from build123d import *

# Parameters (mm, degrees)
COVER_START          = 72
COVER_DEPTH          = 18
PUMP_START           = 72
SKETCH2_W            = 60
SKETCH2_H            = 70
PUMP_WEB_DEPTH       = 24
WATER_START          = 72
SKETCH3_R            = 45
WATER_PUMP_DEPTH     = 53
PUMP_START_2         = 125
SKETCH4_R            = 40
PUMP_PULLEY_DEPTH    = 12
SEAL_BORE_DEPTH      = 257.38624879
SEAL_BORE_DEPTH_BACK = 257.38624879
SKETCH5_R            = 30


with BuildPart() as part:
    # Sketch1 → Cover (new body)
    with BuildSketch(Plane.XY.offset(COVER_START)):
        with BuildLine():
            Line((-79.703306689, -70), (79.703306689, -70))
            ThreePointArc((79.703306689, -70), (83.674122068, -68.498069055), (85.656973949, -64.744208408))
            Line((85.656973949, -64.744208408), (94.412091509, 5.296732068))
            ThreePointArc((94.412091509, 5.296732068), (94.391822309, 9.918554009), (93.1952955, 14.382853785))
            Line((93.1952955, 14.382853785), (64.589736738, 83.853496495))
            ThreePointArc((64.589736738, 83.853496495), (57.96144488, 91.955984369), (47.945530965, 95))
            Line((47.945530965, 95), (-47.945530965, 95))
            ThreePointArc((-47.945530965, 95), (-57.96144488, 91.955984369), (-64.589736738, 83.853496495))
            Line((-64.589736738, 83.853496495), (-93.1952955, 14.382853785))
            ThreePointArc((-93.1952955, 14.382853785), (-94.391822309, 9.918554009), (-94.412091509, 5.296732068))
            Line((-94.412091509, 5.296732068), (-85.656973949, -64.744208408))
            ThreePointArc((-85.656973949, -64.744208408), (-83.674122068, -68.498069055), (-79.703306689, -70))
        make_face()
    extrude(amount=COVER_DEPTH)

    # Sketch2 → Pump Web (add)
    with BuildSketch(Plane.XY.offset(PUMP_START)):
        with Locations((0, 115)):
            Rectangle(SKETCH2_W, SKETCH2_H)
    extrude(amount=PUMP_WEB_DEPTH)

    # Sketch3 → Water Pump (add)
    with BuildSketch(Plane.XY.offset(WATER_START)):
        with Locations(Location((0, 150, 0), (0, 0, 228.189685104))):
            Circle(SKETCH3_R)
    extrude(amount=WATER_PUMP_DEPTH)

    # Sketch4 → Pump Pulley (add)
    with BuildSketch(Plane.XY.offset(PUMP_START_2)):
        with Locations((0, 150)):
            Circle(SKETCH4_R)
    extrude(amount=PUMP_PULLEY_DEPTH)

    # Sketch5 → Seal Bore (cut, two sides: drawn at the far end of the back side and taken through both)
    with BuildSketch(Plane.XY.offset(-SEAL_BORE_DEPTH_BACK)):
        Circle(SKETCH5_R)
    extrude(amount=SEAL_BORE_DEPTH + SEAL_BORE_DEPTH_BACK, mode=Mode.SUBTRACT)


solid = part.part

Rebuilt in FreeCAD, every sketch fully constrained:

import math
import FreeCAD as App
import Part
import Sketcher

V = App.Vector


def add_polygon(sketch, points):
    """Adds a closed chain of lines whose ends are joined by coincident constraints."""
    first, n = sketch.GeometryCount, len(points)
    for a, b in zip(points, points[1:] + points[:1]):
        sketch.addGeometry(Part.LineSegment(App.Vector(*a, 0), App.Vector(*b, 0)), False)
    for i in range(n):
        sketch.addConstraint(Sketcher.Constraint("Coincident", first + i, 2, first + (i + 1) % n, 1))

doc = App.newDocument("Part")
body = doc.addObject("PartDesign::Body", "Body")

# Sketch on XY plane
sketch1 = doc.addObject("Sketcher::SketchObject", "Sketch")
body.addObject(sketch1)
sketch1.AttachmentSupport = (doc.XY_Plane, [""])
sketch1.MapMode = "FlatFace"
sketch1.AttachmentOffset = App.Placement(V(0, 0, 72), App.Rotation())
sketch1.addGeometry([
    Part.LineSegment(V(-79.703307, -70, 0), V(79.703307, -70, 0)),  # 0
    Part.ArcOfCircle(Part.Circle(V(79.703307, -64, 0), V(0, 0, 1), 6), math.radians(-90), math.radians(-7.125016)),  # 1
    Part.LineSegment(V(85.656974, -64.744208, 0), V(94.412092, 5.296732, 0)),  # 2
    Part.ArcOfCircle(Part.Circle(V(76.55109, 7.529357, 0), V(0, 0, 1), 18), math.radians(-7.125016), math.radians(22.380135)),  # 3
    Part.LineSegment(V(93.195296, 14.382854, 0), V(64.589737, 83.853496, 0)),  # 4
    Part.ArcOfCircle(Part.Circle(V(47.945531, 77, 0), V(0, 0, 1), 18), math.radians(22.380135), math.radians(90)),  # 5
    Part.LineSegment(V(47.945531, 95, 0), V(-47.945531, 95, 0)),  # 6
    Part.ArcOfCircle(Part.Circle(V(-47.945531, 77, 0), V(0, 0, 1), 18), math.radians(90), math.radians(157.619865)),  # 7
    Part.LineSegment(V(-64.589737, 83.853496, 0), V(-93.195296, 14.382854, 0)),  # 8
    Part.ArcOfCircle(Part.Circle(V(-76.55109, 7.529357, 0), V(0, 0, 1), 18), math.radians(157.619865), math.radians(187.125016)),  # 9
    Part.LineSegment(V(-94.412092, 5.296732, 0), V(-85.656974, -64.744208, 0)),  # 10
    Part.ArcOfCircle(Part.Circle(V(-79.703307, -64, 0), V(0, 0, 1), 6), math.radians(-172.874984), math.radians(-90)),  # 11
], False)
sketch1.addConstraint([
    Sketcher.Constraint("Coincident", 0, 2, 1, 1),
    Sketcher.Constraint("Coincident", 1, 2, 2, 1),
    Sketcher.Constraint("Coincident", 2, 2, 3, 1),
    Sketcher.Constraint("Coincident", 3, 2, 4, 1),
    Sketcher.Constraint("Coincident", 4, 2, 5, 1),
    Sketcher.Constraint("Coincident", 5, 2, 6, 1),
    Sketcher.Constraint("Coincident", 6, 2, 7, 1),
    Sketcher.Constraint("Coincident", 7, 2, 8, 1),
    Sketcher.Constraint("Coincident", 8, 2, 9, 1),
    Sketcher.Constraint("Coincident", 9, 2, 10, 1),
    Sketcher.Constraint("Coincident", 10, 2, 11, 1),
    Sketcher.Constraint("Coincident", 11, 2, 0, 1),
    Sketcher.Constraint("Horizontal", 0),
    Sketcher.Constraint("Horizontal", 6),
    Sketcher.Constraint("Radius", 1, 6.0),
    Sketcher.Constraint("Radius", 3, 18.0),
    Sketcher.Constraint("Radius", 5, 18.0),
    Sketcher.Constraint("Radius", 7, 18.0),
    Sketcher.Constraint("Radius", 9, 18.0),
    Sketcher.Constraint("Radius", 11, 6.0),
    Sketcher.Constraint("DistanceY", 1, 3, -1, 1, 64.0),
    Sketcher.Constraint("DistanceY", -1, 1, 5, 3, 77.0),
    Sketcher.Constraint("DistanceX", 3, 3, 2, 2, 17.861002),
    Sketcher.Constraint("DistanceX", 9, 2, 9, 3, 17.861002),
    Sketcher.Constraint("DistanceX", 6, 2, 6, 1, 95.891062),
    Sketcher.Constraint("DistanceX", 0, 1, 0, 2, 159.406613),
    Sketcher.Constraint("DistanceX", -1, 1, 3, 3, 76.55109),
    Sketcher.Constraint("DistanceX", -1, 1, 5, 3, 47.945531),
    Sketcher.Constraint("DistanceX", 7, 3, -1, 1, 47.945531),
    Sketcher.Constraint("DistanceX", 9, 3, -1, 1, 76.55109),
    Sketcher.Constraint("DistanceY", 1, 2, -1, 1, 64.744208),
    Sketcher.Constraint("DistanceX", -1, 1, 5, 2, 47.945531),
    Sketcher.Constraint("DistanceY", 10, 2, -1, 1, 64.744208),
    Sketcher.Constraint("DistanceX", 11, 3, 1, 2, 165.360281),
    Sketcher.Constraint("DistanceY", 1, 2, 2, 2, 70.04094),
    Sketcher.Constraint("DistanceY", 2, 2, 3, 2, 9.086122),
    Sketcher.Constraint("DistanceX", 1, 2, 3, 2, 7.538322),
    Sketcher.Constraint("DistanceX", 4, 2, 3, 2, 28.605559),
    Sketcher.Constraint("DistanceY", 9, 3, 7, 2, 76.324139),
    Sketcher.Constraint("DistanceX", 8, 2, 7, 2, 28.605559),
    Sketcher.Constraint("DistanceX", 8, 2, 11, 3, 13.491989),
    Sketcher.Constraint("DistanceX", 8, 2, 11, 2, 13.491989),
])
pad1 = doc.addObject("PartDesign::Pad", "Pad")
body.addObject(pad1)
pad1.Profile = sketch1
pad1.Length = 18

# Sketch on XY plane
sketch2 = doc.addObject("Sketcher::SketchObject", "Sketch001")
body.addObject(sketch2)
sketch2.AttachmentSupport = (doc.XY_Plane, [""])
sketch2.MapMode = "FlatFace"
sketch2.AttachmentOffset = App.Placement(V(0, 0, 72), App.Rotation())
add_polygon(sketch2, [(-30, 150), (-30, 80), (30, 80), (30, 150)])  # lines 0-3
sketch2.addConstraint([
    Sketcher.Constraint("Vertical", 0),
    Sketcher.Constraint("Horizontal", 1),
    Sketcher.Constraint("Vertical", 2),
    Sketcher.Constraint("Horizontal", 3),
    Sketcher.Constraint("DistanceX", 1, 1, 1, 2, 60.0),
    Sketcher.Constraint("DistanceY", 0, 2, 0, 1, 70.0),
    Sketcher.Constraint("DistanceX", 0, 2, -1, 1, 30.0),
    Sketcher.Constraint("DistanceY", -1, 1, 0, 2, 80.0),
])
pad2 = doc.addObject("PartDesign::Pad", "Pad001")
body.addObject(pad2)
pad2.Profile = sketch2
pad2.Length = 24

# Sketch on XY plane
sketch3 = doc.addObject("Sketcher::SketchObject", "Sketch002")
body.addObject(sketch3)
sketch3.AttachmentSupport = (doc.XY_Plane, [""])
sketch3.MapMode = "FlatFace"
sketch3.AttachmentOffset = App.Placement(V(0, 0, 72), App.Rotation())
sketch3.addGeometry(Part.Circle(V(0, 150, 0), V(0, 0, 1), 45), False)
sketch3.addConstraint([
    Sketcher.Constraint("PointOnObject", 0, 3, -2),
    Sketcher.Constraint("Diameter", 0, 90.0),
    Sketcher.Constraint("DistanceY", -1, 1, 0, 3, 150.0),
])
pad3 = doc.addObject("PartDesign::Pad", "Pad002")
body.addObject(pad3)
pad3.Profile = sketch3
pad3.Length = 53

# Sketch on XY plane
sketch4 = doc.addObject("Sketcher::SketchObject", "Sketch003")
body.addObject(sketch4)
sketch4.AttachmentSupport = (doc.XY_Plane, [""])
sketch4.MapMode = "FlatFace"
sketch4.AttachmentOffset = App.Placement(V(0, 0, 125), App.Rotation())
sketch4.addGeometry(Part.Circle(V(0, 150, 0), V(0, 0, 1), 40), False)
sketch4.addConstraint([
    Sketcher.Constraint("PointOnObject", 0, 3, -2),
    Sketcher.Constraint("Diameter", 0, 80.0),
    Sketcher.Constraint("DistanceY", -1, 1, 0, 3, 150.0),
])
pad4 = doc.addObject("PartDesign::Pad", "Pad003")
body.addObject(pad4)
pad4.Profile = sketch4
pad4.Length = 12

# Sketch on XY plane
sketch5 = doc.addObject("Sketcher::SketchObject", "Sketch004")
body.addObject(sketch5)
sketch5.AttachmentSupport = (doc.XY_Plane, [""])
sketch5.MapMode = "FlatFace"
sketch5.addGeometry(Part.Circle(V(0, 0, 0), V(0, 0, 1), 30), False)
sketch5.addConstraint([
    Sketcher.Constraint("Coincident", 0, 3, -1, 1),
    Sketcher.Constraint("Diameter", 0, 60.0),
])
pocket1 = doc.addObject("PartDesign::Pocket", "Pocket")
body.addObject(pocket1)
pocket1.Profile = sketch5
pocket1.Type = "ThroughAll"
pocket1.Midplane = True

doc.recompute()
